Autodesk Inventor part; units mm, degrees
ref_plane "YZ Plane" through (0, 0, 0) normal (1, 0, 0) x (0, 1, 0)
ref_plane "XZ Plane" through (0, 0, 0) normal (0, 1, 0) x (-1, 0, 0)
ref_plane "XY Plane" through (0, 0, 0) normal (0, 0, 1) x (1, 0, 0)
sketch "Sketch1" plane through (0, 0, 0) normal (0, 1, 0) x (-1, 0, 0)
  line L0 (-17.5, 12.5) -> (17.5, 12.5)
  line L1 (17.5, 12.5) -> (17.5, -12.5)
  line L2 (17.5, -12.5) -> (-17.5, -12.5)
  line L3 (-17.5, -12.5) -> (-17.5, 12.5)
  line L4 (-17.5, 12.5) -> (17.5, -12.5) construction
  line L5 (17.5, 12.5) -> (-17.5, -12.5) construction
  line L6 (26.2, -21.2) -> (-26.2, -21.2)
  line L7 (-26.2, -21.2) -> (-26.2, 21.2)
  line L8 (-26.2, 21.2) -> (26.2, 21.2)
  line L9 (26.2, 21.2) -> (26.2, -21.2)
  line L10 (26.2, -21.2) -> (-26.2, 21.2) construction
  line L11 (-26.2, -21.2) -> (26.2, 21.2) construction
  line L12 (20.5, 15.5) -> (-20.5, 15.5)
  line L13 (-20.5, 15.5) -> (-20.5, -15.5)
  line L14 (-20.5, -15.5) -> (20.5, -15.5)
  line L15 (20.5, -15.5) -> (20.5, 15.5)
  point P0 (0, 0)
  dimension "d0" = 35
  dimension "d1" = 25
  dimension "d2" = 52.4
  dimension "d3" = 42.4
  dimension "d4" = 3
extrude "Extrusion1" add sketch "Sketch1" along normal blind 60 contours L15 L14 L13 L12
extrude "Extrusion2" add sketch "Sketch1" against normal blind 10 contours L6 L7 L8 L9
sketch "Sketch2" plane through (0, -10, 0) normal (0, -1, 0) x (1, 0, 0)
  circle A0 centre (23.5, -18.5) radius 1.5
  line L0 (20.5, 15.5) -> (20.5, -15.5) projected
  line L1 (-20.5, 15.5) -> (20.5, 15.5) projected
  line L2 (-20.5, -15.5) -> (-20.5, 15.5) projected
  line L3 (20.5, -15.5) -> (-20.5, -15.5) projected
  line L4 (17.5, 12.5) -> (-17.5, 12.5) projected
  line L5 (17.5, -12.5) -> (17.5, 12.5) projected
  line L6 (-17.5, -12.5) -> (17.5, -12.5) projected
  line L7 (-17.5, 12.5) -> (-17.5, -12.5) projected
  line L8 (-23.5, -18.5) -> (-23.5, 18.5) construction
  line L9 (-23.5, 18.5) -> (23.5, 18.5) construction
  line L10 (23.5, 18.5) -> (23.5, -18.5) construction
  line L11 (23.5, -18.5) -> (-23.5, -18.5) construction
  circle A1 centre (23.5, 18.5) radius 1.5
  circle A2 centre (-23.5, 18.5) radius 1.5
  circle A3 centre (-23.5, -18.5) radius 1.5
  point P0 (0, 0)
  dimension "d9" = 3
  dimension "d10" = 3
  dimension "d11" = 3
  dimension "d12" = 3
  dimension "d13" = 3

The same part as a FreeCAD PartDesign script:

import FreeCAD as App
import Part
import Sketcher

V = App.Vector
Q = App.Units.Quantity

doc = App.newDocument("Part")
body = doc.addObject("PartDesign::Body", "Body")
body.AllowCompound = True

# Sketch on XZ plane
sketch1 = body.newObject("Sketcher::SketchObject", "Sketch")
sketch1.AttachmentSupport = (doc.getObject("XZ_Plane"), [""])
sketch1.MapMode = "FlatFace"
sketch1.addGeometry(Part.LineSegment(V(-20.5, -15.5, 0), V(-20.5, 15.5, 0)), False)
sketch1.addGeometry(Part.LineSegment(V(-20.5, 15.5, 0), V(20.5, 15.5, 0)), False)
sketch1.addGeometry(Part.LineSegment(V(20.5, 15.5, 0), V(20.5, -15.5, 0)), False)
sketch1.addGeometry(Part.LineSegment(V(20.5, -15.5, 0), V(-20.5, -15.5, 0)), False)
sketch1.addGeometry(Part.LineSegment(V(17.5, -12.5, 0), V(17.5, 12.5, 0)), False)
sketch1.addGeometry(Part.LineSegment(V(17.5, 12.5, 0), V(-17.5, 12.5, 0)), False)
sketch1.addGeometry(Part.LineSegment(V(-17.5, 12.5, 0), V(-17.5, -12.5, 0)), False)
sketch1.addGeometry(Part.LineSegment(V(-17.5, -12.5, 0), V(17.5, -12.5, 0)), False)
sketch1.addConstraint(Sketcher.Constraint("Coincident", 0, 2, 1, 1))
sketch1.addConstraint(Sketcher.Constraint("Coincident", 1, 2, 2, 1))
sketch1.addConstraint(Sketcher.Constraint("Coincident", 2, 2, 3, 1))
sketch1.addConstraint(Sketcher.Constraint("Coincident", 3, 2, 0, 1))
sketch1.addConstraint(Sketcher.Constraint("Coincident", 4, 2, 5, 1))
sketch1.addConstraint(Sketcher.Constraint("Coincident", 5, 2, 6, 1))
sketch1.addConstraint(Sketcher.Constraint("Coincident", 6, 2, 7, 1))
sketch1.addConstraint(Sketcher.Constraint("Coincident", 7, 2, 4, 1))
sketch1.addConstraint(Sketcher.Constraint("Vertical", 0))
sketch1.addConstraint(Sketcher.Constraint("Horizontal", 1))
sketch1.addConstraint(Sketcher.Constraint("Vertical", 2))
sketch1.addConstraint(Sketcher.Constraint("Horizontal", 3))
sketch1.addConstraint(Sketcher.Constraint("Vertical", 4))
sketch1.addConstraint(Sketcher.Constraint("Horizontal", 5))
sketch1.addConstraint(Sketcher.Constraint("Vertical", 6))
sketch1.addConstraint(Sketcher.Constraint("Horizontal", 7))
sketch1.addConstraint(Sketcher.Constraint("Symmetric", 0, 2, 2, 2, -1, 1))
sketch1.addConstraint(Sketcher.Constraint("Symmetric", 4, 2, 6, 2, -1, 1))
sketch1.addConstraint(Sketcher.Constraint("DistanceX", 5, 2, 5, 1, Q("35 mm")))
sketch1.addConstraint(Sketcher.Constraint("DistanceY", 4, 1, 4, 2, Q("25 mm")))
sketch1.addConstraint(Sketcher.Constraint("DistanceX", 4, 2, 1, 2, Q("3 mm")))
sketch1.addConstraint(Sketcher.Constraint("DistanceY", 4, 2, 1, 2, Q("3 mm")))
pad1 = body.newObject("PartDesign::Pad", "Pad")
pad1.Profile = sketch1
pad1.Length = 60
pad1.Reversed = True

# Sketch on XZ plane
sketch2 = body.newObject("Sketcher::SketchObject", "Sketch001")
sketch2.AttachmentSupport = (doc.getObject("XZ_Plane"), [""])
sketch2.MapMode = "FlatFace"
sketch2.addGeometry(Part.LineSegment(V(26.2, -21.2, 0), V(-26.2, -21.2, 0)), False)
sketch2.addGeometry(Part.LineSegment(V(-26.2, -21.2, 0), V(-26.2, 21.2, 0)), False)
sketch2.addGeometry(Part.LineSegment(V(-26.2, 21.2, 0), V(26.2, 21.2, 0)), False)
sketch2.addGeometry(Part.LineSegment(V(26.2, 21.2, 0), V(26.2, -21.2, 0)), False)
sketch2.addGeometry(Part.LineSegment(V(20.5, 15.5, 0), V(-20.5, 15.5, 0)), False)
sketch2.addGeometry(Part.LineSegment(V(-20.5, 15.5, 0), V(-20.5, -15.5, 0)), False)
sketch2.addGeometry(Part.LineSegment(V(-20.5, -15.5, 0), V(20.5, -15.5, 0)), False)
sketch2.addGeometry(Part.LineSegment(V(20.5, -15.5, 0), V(20.5, 15.5, 0)), False)
sketch2.addConstraint(Sketcher.Constraint("Coincident", 0, 2, 1, 1))
sketch2.addConstraint(Sketcher.Constraint("Coincident", 1, 2, 2, 1))
sketch2.addConstraint(Sketcher.Constraint("Coincident", 2, 2, 3, 1))
sketch2.addConstraint(Sketcher.Constraint("Coincident", 3, 2, 0, 1))
sketch2.addConstraint(Sketcher.Constraint("Coincident", 4, 2, 5, 1))
sketch2.addConstraint(Sketcher.Constraint("Coincident", 5, 2, 6, 1))
sketch2.addConstraint(Sketcher.Constraint("Coincident", 6, 2, 7, 1))
sketch2.addConstraint(Sketcher.Constraint("Coincident", 7, 2, 4, 1))
sketch2.addConstraint(Sketcher.Constraint("Horizontal", 0))
sketch2.addConstraint(Sketcher.Constraint("Vertical", 1))
sketch2.addConstraint(Sketcher.Constraint("Horizontal", 2))
sketch2.addConstraint(Sketcher.Constraint("Vertical", 3))
sketch2.addConstraint(Sketcher.Constraint("Horizontal", 4))
sketch2.addConstraint(Sketcher.Constraint("Vertical", 5))
sketch2.addConstraint(Sketcher.Constraint("Horizontal", 6))
sketch2.addConstraint(Sketcher.Constraint("Vertical", 7))
sketch2.addConstraint(Sketcher.Constraint("Symmetric", 0, 2, 2, 2, -1, 1))
sketch2.addConstraint(Sketcher.Constraint("Symmetric", 4, 2, 6, 2, -1, 1))
sketch2.addConstraint(Sketcher.Constraint("DistanceX", 0, 2, 0, 1, Q("52.4 mm")))
sketch2.addConstraint(Sketcher.Constraint("DistanceY", 1, 1, 1, 2, Q("42.4 mm")))
sketch2.addConstraint(Sketcher.Constraint("DistanceX", 4, 2, 4, 1, Q("41 mm")))
sketch2.addConstraint(Sketcher.Constraint("DistanceY", 5, 2, 5, 1, Q("31 mm")))
pad2 = body.newObject("PartDesign::Pad", "Pad001")
pad2.Profile = sketch2
pad2.Length = 10

doc.recompute()
